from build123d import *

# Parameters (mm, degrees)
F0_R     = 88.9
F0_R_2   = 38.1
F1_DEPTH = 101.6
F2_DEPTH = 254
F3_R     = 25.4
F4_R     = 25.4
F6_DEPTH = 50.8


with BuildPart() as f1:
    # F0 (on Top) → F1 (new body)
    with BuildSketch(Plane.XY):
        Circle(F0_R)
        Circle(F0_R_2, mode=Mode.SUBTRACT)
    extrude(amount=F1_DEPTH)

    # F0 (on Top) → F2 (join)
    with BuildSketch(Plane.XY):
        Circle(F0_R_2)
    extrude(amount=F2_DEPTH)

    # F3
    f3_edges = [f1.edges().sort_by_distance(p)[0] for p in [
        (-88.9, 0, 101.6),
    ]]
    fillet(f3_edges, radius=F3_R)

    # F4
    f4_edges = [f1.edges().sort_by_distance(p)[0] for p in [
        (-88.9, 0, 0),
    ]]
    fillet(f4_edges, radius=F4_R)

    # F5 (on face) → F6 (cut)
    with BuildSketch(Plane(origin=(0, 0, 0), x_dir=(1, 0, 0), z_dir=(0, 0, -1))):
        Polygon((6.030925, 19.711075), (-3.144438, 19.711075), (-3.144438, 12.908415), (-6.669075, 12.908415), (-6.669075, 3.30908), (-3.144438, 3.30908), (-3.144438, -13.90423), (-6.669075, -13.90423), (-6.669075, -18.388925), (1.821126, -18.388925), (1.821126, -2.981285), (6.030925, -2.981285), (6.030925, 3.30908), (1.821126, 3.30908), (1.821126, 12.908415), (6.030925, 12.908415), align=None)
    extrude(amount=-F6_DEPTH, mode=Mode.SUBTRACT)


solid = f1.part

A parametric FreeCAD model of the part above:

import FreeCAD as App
import Part
import Sketcher

V = App.Vector
Q = App.Units.Quantity


def edges_at(feature, points):
    """Names of the edges that pass closest to the given points."""
    edges = feature.Shape.Edges
    near = lambda p: min(range(len(edges)), key=lambda i: edges[i].distToShape(Part.Vertex(*p))[0])
    return sorted({f"Edge{near(p) + 1}" for p in points})


def add_polygon(sketch, points):
    """Adds a closed chain of lines whose ends are joined by coincident constraints."""
    first, n = sketch.GeometryCount, len(points)
    for a, b in zip(points, points[1:] + points[:1]):
        sketch.addGeometry(Part.LineSegment(App.Vector(*a, 0), App.Vector(*b, 0)), False)
    for i in range(n):
        sketch.addConstraint(Sketcher.Constraint("Coincident", first + i, 2, first + (i + 1) % n, 1))

doc = App.newDocument("Part")
body = doc.addObject("PartDesign::Body", "Body")

# Sketch on XY plane
sketch1 = body.newObject("Sketcher::SketchObject", "Sketch")
sketch1.AttachmentSupport = (doc.getObject("XY_Plane"), [""])
sketch1.MapMode = "FlatFace"
sketch1.addGeometry([
    Part.Circle(V(0, 0, 0), V(0, 0, 1), 88.9),
    Part.Circle(V(0, 0, 0), V(0, 0, 1), 38.1),
], False)
sketch1.addConstraint([
    Sketcher.Constraint("Coincident", 0, 3, -1, 1),
    Sketcher.Constraint("Coincident", 1, 3, -1, 1),
    Sketcher.Constraint("Diameter", 0, Q("7 in")),
    Sketcher.Constraint("Diameter", 1, Q("3 in")),
])
pad1 = body.newObject("PartDesign::Pad", "Pad")
pad1.Profile = sketch1
pad1.Length = Q("4 in")

# Sketch on XY plane
sketch2 = body.newObject("Sketcher::SketchObject", "Sketch001")
sketch2.AttachmentSupport = (doc.getObject("XY_Plane"), [""])
sketch2.MapMode = "FlatFace"
sketch2.addGeometry(Part.Circle(V(0, 0, 0), V(0, 0, 1), 38.1), False)
sketch2.addConstraint([
    Sketcher.Constraint("Coincident", 0, 3, -1, 1),
    Sketcher.Constraint("Diameter", 0, Q("3 in")),
])
pad2 = body.newObject("PartDesign::Pad", "Pad001")
pad2.Profile = sketch2
pad2.Length = Q("10 in")
doc.recompute()

fillet = body.newObject("PartDesign::Fillet", "Fillet")
fillet.Base = (pad2, edges_at(pad2, [(-88.9, 0, 101.6)]))
fillet.Radius = Q("1 in")
doc.recompute()

fillet2 = body.newObject("PartDesign::Fillet", "Fillet001")
fillet2.Base = (fillet, edges_at(fillet, [(-88.9, 0, 0)]))
fillet2.Radius = Q("1 in")

# Sketch on XY plane
sketch3 = body.newObject("Sketcher::SketchObject", "Sketch002")
sketch3.AttachmentSupport = (doc.getObject("XY_Plane"), [""])
sketch3.MapMode = "FlatFace"
add_polygon(sketch3, [(6.030925, -19.711075), (-3.144438, -19.711075), (-3.144438, -12.908415), (-6.669075, -12.908415), (-6.669075, -3.30908), (-3.144438, -3.30908), (-3.144438, 13.90423), (-6.669075, 13.90423), (-6.669075, 18.388925), (1.821126, 18.388925), (1.821126, 2.981285), (6.030925, 2.981285), (6.030925, -3.30908), (1.821126, -3.30908), (1.821126, -12.908415), (6.030925, -12.908415)])  # lines 0-15
sketch3.addConstraint([
    Sketcher.Constraint("Horizontal", 0),
    Sketcher.Constraint("Vertical", 1),
    Sketcher.Constraint("Horizontal", 2),
    Sketcher.Constraint("Vertical", 3),
    Sketcher.Constraint("Horizontal", 4),
    Sketcher.Constraint("Vertical", 5),
    Sketcher.Constraint("Horizontal", 6),
    Sketcher.Constraint("Vertical", 7),
    Sketcher.Constraint("Horizontal", 8),
    Sketcher.Constraint("Vertical", 9),
    Sketcher.Constraint("Horizontal", 10),
    Sketcher.Constraint("Vertical", 11),
    Sketcher.Constraint("Horizontal", 12),
    Sketcher.Constraint("Vertical", 13),
    Sketcher.Constraint("Horizontal", 14),
    Sketcher.Constraint("Vertical", 15),
    Sketcher.Constraint("Horizontal", 4, 2, 11, 2),
    Sketcher.Constraint("Horizontal", 2, 2, 13, 2),
    Sketcher.Constraint("Vertical", 1, 2, 4, 2),
    Sketcher.Constraint("Vertical", 3, 2, 6, 2),
    Sketcher.Constraint("Vertical", 9, 2, 12, 2),
    Sketcher.Constraint("Vertical", 11, 2, 14, 2),
    Sketcher.Constraint("DistanceX", 3, 2, 10, 2, Q("0.5 in")),
    Sketcher.Constraint("DistanceY", 9, 2, 9, 1, Q("0.6066 in")),
    Sketcher.Constraint("DistanceX", 8, 1, 8, 2, Q("8.490201 mm")),
    Sketcher.Constraint("DistanceY", 1, 1, 1, 2, Q("6.80266 mm")),
    Sketcher.Constraint("DistanceY", 5, 1, 5, 2, Q("17.21331 mm")),
    Sketcher.Constraint("DistanceX", 0, 2, 0, 1, Q("9.175363 mm")),
    Sketcher.Constraint("DistanceY", 3, 1, 3, 2, Q("9.599335 mm")),
    Sketcher.Constraint("DistanceY", 7, 1, 7, 2, Q("4.484695 mm")),
    Sketcher.Constraint("DistanceX", 0, 2, -1, 1, Q("3.144438 mm")),
    Sketcher.Constraint("DistanceY", 3, 2, -1, 1, Q("3.30908 mm")),
])
pocket1 = body.newObject("PartDesign::Pocket", "Pocket")
pocket1.Profile = sketch3
pocket1.Length = Q("2 in")
pocket1.Reversed = True

doc.recompute()
